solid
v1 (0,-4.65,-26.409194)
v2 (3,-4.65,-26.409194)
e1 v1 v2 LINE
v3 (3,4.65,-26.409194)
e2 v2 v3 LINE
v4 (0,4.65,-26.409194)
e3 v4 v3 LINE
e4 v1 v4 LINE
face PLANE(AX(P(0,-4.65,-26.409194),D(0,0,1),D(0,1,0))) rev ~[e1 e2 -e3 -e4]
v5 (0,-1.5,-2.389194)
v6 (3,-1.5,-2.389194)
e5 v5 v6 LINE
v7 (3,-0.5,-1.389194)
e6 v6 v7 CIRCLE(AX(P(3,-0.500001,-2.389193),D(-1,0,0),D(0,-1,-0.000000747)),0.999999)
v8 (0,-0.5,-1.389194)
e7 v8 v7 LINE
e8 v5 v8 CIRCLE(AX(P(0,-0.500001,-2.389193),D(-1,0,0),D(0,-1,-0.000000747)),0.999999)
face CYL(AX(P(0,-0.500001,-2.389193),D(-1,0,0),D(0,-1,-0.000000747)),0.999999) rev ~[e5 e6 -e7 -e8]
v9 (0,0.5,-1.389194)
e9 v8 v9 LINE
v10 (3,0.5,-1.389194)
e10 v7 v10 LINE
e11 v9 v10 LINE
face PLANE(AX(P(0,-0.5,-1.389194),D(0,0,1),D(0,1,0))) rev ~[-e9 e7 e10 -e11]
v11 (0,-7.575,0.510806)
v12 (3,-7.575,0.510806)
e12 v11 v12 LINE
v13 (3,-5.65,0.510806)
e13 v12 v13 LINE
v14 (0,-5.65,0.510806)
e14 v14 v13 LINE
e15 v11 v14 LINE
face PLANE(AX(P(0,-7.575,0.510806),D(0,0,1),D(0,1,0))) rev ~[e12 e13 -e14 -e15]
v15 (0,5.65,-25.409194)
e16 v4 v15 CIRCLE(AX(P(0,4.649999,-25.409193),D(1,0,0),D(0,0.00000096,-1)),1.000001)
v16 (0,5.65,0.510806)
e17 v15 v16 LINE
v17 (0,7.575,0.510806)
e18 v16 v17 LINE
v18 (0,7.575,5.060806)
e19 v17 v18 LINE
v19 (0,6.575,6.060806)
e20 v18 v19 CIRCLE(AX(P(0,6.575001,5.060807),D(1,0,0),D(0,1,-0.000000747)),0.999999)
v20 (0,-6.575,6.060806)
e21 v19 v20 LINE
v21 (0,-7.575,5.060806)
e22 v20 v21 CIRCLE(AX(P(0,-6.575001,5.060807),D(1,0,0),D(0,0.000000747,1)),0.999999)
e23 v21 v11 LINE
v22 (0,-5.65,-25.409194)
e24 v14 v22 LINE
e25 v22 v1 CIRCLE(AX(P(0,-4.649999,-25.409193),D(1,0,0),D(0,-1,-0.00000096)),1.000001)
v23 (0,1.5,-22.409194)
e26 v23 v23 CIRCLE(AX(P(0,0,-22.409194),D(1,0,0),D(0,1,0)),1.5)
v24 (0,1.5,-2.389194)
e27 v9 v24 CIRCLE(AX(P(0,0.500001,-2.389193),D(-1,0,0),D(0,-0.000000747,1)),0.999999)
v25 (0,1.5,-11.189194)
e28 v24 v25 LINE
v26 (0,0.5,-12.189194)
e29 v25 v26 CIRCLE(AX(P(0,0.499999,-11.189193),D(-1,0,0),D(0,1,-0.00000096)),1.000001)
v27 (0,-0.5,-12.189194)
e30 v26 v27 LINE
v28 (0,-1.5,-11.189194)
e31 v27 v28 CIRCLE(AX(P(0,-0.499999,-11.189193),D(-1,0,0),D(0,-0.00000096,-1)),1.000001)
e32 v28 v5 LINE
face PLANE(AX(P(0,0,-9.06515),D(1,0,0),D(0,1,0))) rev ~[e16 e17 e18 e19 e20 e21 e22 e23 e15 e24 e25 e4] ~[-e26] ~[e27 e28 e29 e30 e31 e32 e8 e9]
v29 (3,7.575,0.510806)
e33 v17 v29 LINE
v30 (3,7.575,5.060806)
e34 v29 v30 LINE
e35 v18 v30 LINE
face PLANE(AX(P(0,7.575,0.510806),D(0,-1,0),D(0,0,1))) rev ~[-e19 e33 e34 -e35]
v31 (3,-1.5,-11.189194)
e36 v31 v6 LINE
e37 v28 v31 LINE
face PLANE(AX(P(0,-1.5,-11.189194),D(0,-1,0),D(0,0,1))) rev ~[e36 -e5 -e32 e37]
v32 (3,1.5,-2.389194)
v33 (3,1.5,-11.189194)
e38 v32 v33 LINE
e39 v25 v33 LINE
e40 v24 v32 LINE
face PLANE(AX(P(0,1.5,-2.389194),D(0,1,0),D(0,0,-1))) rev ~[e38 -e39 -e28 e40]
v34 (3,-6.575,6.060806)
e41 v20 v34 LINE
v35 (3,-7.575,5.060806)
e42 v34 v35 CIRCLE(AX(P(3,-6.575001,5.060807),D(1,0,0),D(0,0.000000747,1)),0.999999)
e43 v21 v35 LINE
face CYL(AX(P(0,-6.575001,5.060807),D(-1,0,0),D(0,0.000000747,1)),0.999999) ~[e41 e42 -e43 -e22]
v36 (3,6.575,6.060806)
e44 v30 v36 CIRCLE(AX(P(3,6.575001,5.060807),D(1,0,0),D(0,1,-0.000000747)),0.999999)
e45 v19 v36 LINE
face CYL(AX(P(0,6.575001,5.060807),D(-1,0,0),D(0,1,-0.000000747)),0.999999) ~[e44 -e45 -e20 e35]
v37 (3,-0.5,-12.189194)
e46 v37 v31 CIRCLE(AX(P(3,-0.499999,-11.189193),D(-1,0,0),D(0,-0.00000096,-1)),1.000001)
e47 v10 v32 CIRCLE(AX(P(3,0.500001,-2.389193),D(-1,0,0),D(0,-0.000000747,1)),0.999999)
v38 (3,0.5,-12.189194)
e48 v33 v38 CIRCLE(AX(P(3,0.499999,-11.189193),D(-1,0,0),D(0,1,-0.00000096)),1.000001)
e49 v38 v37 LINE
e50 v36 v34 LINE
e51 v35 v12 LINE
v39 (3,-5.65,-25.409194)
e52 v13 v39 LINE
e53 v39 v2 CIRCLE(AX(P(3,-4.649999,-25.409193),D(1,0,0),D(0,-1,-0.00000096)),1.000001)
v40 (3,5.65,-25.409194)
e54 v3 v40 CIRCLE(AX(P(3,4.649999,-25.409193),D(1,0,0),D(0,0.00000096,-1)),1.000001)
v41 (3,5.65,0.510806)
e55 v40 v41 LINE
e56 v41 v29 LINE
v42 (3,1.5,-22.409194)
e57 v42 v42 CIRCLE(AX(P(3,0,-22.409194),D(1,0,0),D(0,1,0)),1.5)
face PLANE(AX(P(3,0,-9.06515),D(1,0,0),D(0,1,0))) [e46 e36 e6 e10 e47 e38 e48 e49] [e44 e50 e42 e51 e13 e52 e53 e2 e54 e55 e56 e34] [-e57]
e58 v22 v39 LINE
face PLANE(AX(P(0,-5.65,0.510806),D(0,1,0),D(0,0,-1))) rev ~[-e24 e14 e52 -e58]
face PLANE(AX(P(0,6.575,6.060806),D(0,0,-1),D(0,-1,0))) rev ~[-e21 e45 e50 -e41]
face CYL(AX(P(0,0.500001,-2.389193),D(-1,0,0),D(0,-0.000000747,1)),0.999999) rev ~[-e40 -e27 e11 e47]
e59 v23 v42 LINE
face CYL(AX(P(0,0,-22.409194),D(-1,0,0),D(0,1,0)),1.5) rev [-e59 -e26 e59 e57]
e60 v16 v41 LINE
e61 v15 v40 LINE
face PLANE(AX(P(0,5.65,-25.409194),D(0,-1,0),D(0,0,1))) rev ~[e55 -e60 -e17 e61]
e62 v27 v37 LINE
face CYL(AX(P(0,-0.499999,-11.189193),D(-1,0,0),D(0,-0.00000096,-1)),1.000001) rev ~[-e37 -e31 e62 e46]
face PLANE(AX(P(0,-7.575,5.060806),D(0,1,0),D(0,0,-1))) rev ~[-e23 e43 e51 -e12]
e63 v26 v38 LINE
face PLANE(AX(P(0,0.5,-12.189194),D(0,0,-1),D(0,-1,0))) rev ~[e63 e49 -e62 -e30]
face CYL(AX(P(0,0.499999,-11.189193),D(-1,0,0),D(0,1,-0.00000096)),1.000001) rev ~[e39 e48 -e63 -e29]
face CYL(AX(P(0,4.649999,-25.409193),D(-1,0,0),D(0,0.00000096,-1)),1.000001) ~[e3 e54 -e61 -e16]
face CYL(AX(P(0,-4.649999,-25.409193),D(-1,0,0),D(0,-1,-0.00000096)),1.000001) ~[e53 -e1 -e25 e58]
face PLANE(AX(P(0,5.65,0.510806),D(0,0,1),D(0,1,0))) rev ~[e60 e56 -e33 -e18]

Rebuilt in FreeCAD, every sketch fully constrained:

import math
import FreeCAD as App
import Part
import Sketcher
from FreeCAD import Vector

doc = App.newDocument("Part")
body = doc.addObject("PartDesign::Body", "Body")

# Sketch on YZ plane
sketch1 = doc.addObject("Sketcher::SketchObject", "Sketch")
body.addObject(sketch1)
sketch1.AttachmentSupport = (doc.YZ_Plane, [""])
sketch1.MapMode = "FlatFace"
sketch1.addGeometry([
    Part.LineSegment(Vector(6.575, 6.060806, 0), Vector(-6.575, 6.060806, 0)),  # 0
    Part.ArcOfCircle(Part.Circle(Vector(-6.575001, 5.060807, 0), Vector(0, 0, 1), 0.999999), math.radians(89.999957), math.radians(180.000043)),  # 1
    Part.LineSegment(Vector(-7.575, 5.060806, 0), Vector(-7.575, 0.510806, 0)),  # 2
    Part.LineSegment(Vector(-7.575, 0.510806, 0), Vector(-5.65, 0.510806, 0)),  # 3
    Part.LineSegment(Vector(-5.65, 0.510806, 0), Vector(-5.65, -25.409194, 0)),  # 4
    Part.ArcOfCircle(Part.Circle(Vector(-4.649999, -25.409193, 0), Vector(0, 0, 1), 1.000001), math.radians(-179.999945), math.radians(-90.000055)),  # 5
    Part.LineSegment(Vector(-4.65, -26.409194, 0), Vector(4.65, -26.409194, 0)),  # 6
    Part.ArcOfCircle(Part.Circle(Vector(4.649999, -25.409193, 0), Vector(0, 0, 1), 1.000001), math.radians(-89.999945), math.radians(-0.000055)),  # 7
    Part.LineSegment(Vector(5.65, -25.409194, 0), Vector(5.65, 0.510806, 0)),  # 8
    Part.LineSegment(Vector(5.65, 0.510806, 0), Vector(7.575, 0.510806, 0)),  # 9
    Part.LineSegment(Vector(7.575, 0.510806, 0), Vector(7.575, 5.060806, 0)),  # 10
    Part.ArcOfCircle(Part.Circle(Vector(6.575001, 5.060807, 0), Vector(0, 0, 1), 0.999999), math.radians(-0.000043), math.radians(90.000043)),  # 11
    Part.Circle(Vector(0, -22.409194, 0), Vector(0, 0, 1), 1.5),  # 12
    Part.LineSegment(Vector(-1.5, -11.189194, 0), Vector(-1.5, -2.389194, 0)),  # 13
    Part.ArcOfCircle(Part.Circle(Vector(-0.500001, -2.389193, 0), Vector(0, 0, 1), 0.999999), math.radians(89.999957), math.radians(180.000043)),  # 14
    Part.LineSegment(Vector(-0.5, -1.389194, 0), Vector(0.5, -1.389194, 0)),  # 15
    Part.ArcOfCircle(Part.Circle(Vector(0.500001, -2.389193, 0), Vector(0, 0, 1), 0.999999), math.radians(-0.000043), math.radians(90.000043)),  # 16
    Part.LineSegment(Vector(1.5, -2.389194, 0), Vector(1.5, -11.189194, 0)),  # 17
    Part.ArcOfCircle(Part.Circle(Vector(0.499999, -11.189193, 0), Vector(0, 0, 1), 1.000001), math.radians(-89.999945), math.radians(-0.000055)),  # 18
    Part.LineSegment(Vector(0.5, -12.189194, 0), Vector(-0.5, -12.189194, 0)),  # 19
    Part.ArcOfCircle(Part.Circle(Vector(-0.499999, -11.189193, 0), Vector(0, 0, 1), 1.000001), math.radians(-179.999945), math.radians(-90.000055)),  # 20
], False)
sketch1.addConstraint([
    Sketcher.Constraint("Tangent", 0, 2, 1, 1),
    Sketcher.Constraint("Tangent", 1, 2, 2, 1),
    Sketcher.Constraint("Coincident", 2, 2, 3, 1),
    Sketcher.Constraint("Coincident", 3, 2, 4, 1),
    Sketcher.Constraint("Tangent", 4, 2, 5, 1),
    Sketcher.Constraint("Tangent", 5, 2, 6, 1),
    Sketcher.Constraint("Tangent", 6, 2, 7, 1),
    Sketcher.Constraint("Tangent", 7, 2, 8, 1),
    Sketcher.Constraint("Coincident", 8, 2, 9, 1),
    Sketcher.Constraint("Coincident", 9, 2, 10, 1),
    Sketcher.Constraint("Tangent", 10, 2, 11, 1),
    Sketcher.Constraint("Tangent", 11, 2, 0, 1),
    Sketcher.Constraint("Tangent", 13, 2, 14, 2),
    Sketcher.Constraint("Tangent", 14, 1, 15, 1),
    Sketcher.Constraint("Tangent", 15, 2, 16, 2),
    Sketcher.Constraint("Tangent", 16, 1, 17, 1),
    Sketcher.Constraint("Tangent", 17, 2, 18, 2),
    Sketcher.Constraint("Tangent", 18, 1, 19, 1),
    Sketcher.Constraint("Tangent", 19, 2, 20, 2),
    Sketcher.Constraint("Tangent", 20, 1, 13, 1),
    Sketcher.Constraint("Horizontal", 0),
    Sketcher.Constraint("Vertical", 2),
    Sketcher.Constraint("Horizontal", 3),
    Sketcher.Constraint("Vertical", 4),
    Sketcher.Constraint("Horizontal", 6),
    Sketcher.Constraint("Vertical", 8),
    Sketcher.Constraint("Horizontal", 9),
    Sketcher.Constraint("Vertical", 10),
    Sketcher.Constraint("Vertical", 13),
    Sketcher.Constraint("Horizontal", 15),
    Sketcher.Constraint("Vertical", 17),
    Sketcher.Constraint("Horizontal", 19),
    Sketcher.Constraint("Equal", 1, 5),
    Sketcher.Constraint("Equal", 5, 7),
    Sketcher.Constraint("Equal", 7, 11),
    Sketcher.Constraint("Equal", 11, 14),
    Sketcher.Constraint("Equal", 14, 16),
    Sketcher.Constraint("Equal", 16, 18),
    Sketcher.Constraint("Equal", 18, 20),
    Sketcher.Constraint("Symmetric", 3, 2, 8, 2, -2),
    Sketcher.Constraint("PointOnObject", 12, 3, -2),
    Sketcher.Constraint("Equal", 3, 9),
    Sketcher.Constraint("Diameter", 12, 3.0),
    Sketcher.Constraint("Radius", 1, 0.999999),
    Sketcher.Constraint("DistanceX", 15, 1, 15, 2, 1.0),
    Sketcher.Constraint("DistanceX", 6, 1, 6, 2, 9.3),
    Sketcher.Constraint("DistanceY", 13, 1, 13, 2, 8.8),
    Sketcher.Constraint("DistanceY", 5, 3, 12, 3, 2.999999),
    Sketcher.Constraint("DistanceX", 0, 2, 0, 1, 13.15),
    Sketcher.Constraint("DistanceY", 2, 2, 2, 1, 4.55),
    Sketcher.Constraint("DistanceY", 4, 2, 4, 1, 25.92),
    Sketcher.Constraint("DistanceX", 14, 3, -1, 1, 0.500001),
    Sketcher.Constraint("DistanceY", 14, 3, 2, 2, 2.899999),
    Sketcher.Constraint("DistanceY", -1, 1, 1, 3, 5.060807),
])
pad1 = doc.addObject("PartDesign::Pad", "Pad")
body.addObject(pad1)
pad1.Profile = sketch1
pad1.Length = 3

doc.recompute()
